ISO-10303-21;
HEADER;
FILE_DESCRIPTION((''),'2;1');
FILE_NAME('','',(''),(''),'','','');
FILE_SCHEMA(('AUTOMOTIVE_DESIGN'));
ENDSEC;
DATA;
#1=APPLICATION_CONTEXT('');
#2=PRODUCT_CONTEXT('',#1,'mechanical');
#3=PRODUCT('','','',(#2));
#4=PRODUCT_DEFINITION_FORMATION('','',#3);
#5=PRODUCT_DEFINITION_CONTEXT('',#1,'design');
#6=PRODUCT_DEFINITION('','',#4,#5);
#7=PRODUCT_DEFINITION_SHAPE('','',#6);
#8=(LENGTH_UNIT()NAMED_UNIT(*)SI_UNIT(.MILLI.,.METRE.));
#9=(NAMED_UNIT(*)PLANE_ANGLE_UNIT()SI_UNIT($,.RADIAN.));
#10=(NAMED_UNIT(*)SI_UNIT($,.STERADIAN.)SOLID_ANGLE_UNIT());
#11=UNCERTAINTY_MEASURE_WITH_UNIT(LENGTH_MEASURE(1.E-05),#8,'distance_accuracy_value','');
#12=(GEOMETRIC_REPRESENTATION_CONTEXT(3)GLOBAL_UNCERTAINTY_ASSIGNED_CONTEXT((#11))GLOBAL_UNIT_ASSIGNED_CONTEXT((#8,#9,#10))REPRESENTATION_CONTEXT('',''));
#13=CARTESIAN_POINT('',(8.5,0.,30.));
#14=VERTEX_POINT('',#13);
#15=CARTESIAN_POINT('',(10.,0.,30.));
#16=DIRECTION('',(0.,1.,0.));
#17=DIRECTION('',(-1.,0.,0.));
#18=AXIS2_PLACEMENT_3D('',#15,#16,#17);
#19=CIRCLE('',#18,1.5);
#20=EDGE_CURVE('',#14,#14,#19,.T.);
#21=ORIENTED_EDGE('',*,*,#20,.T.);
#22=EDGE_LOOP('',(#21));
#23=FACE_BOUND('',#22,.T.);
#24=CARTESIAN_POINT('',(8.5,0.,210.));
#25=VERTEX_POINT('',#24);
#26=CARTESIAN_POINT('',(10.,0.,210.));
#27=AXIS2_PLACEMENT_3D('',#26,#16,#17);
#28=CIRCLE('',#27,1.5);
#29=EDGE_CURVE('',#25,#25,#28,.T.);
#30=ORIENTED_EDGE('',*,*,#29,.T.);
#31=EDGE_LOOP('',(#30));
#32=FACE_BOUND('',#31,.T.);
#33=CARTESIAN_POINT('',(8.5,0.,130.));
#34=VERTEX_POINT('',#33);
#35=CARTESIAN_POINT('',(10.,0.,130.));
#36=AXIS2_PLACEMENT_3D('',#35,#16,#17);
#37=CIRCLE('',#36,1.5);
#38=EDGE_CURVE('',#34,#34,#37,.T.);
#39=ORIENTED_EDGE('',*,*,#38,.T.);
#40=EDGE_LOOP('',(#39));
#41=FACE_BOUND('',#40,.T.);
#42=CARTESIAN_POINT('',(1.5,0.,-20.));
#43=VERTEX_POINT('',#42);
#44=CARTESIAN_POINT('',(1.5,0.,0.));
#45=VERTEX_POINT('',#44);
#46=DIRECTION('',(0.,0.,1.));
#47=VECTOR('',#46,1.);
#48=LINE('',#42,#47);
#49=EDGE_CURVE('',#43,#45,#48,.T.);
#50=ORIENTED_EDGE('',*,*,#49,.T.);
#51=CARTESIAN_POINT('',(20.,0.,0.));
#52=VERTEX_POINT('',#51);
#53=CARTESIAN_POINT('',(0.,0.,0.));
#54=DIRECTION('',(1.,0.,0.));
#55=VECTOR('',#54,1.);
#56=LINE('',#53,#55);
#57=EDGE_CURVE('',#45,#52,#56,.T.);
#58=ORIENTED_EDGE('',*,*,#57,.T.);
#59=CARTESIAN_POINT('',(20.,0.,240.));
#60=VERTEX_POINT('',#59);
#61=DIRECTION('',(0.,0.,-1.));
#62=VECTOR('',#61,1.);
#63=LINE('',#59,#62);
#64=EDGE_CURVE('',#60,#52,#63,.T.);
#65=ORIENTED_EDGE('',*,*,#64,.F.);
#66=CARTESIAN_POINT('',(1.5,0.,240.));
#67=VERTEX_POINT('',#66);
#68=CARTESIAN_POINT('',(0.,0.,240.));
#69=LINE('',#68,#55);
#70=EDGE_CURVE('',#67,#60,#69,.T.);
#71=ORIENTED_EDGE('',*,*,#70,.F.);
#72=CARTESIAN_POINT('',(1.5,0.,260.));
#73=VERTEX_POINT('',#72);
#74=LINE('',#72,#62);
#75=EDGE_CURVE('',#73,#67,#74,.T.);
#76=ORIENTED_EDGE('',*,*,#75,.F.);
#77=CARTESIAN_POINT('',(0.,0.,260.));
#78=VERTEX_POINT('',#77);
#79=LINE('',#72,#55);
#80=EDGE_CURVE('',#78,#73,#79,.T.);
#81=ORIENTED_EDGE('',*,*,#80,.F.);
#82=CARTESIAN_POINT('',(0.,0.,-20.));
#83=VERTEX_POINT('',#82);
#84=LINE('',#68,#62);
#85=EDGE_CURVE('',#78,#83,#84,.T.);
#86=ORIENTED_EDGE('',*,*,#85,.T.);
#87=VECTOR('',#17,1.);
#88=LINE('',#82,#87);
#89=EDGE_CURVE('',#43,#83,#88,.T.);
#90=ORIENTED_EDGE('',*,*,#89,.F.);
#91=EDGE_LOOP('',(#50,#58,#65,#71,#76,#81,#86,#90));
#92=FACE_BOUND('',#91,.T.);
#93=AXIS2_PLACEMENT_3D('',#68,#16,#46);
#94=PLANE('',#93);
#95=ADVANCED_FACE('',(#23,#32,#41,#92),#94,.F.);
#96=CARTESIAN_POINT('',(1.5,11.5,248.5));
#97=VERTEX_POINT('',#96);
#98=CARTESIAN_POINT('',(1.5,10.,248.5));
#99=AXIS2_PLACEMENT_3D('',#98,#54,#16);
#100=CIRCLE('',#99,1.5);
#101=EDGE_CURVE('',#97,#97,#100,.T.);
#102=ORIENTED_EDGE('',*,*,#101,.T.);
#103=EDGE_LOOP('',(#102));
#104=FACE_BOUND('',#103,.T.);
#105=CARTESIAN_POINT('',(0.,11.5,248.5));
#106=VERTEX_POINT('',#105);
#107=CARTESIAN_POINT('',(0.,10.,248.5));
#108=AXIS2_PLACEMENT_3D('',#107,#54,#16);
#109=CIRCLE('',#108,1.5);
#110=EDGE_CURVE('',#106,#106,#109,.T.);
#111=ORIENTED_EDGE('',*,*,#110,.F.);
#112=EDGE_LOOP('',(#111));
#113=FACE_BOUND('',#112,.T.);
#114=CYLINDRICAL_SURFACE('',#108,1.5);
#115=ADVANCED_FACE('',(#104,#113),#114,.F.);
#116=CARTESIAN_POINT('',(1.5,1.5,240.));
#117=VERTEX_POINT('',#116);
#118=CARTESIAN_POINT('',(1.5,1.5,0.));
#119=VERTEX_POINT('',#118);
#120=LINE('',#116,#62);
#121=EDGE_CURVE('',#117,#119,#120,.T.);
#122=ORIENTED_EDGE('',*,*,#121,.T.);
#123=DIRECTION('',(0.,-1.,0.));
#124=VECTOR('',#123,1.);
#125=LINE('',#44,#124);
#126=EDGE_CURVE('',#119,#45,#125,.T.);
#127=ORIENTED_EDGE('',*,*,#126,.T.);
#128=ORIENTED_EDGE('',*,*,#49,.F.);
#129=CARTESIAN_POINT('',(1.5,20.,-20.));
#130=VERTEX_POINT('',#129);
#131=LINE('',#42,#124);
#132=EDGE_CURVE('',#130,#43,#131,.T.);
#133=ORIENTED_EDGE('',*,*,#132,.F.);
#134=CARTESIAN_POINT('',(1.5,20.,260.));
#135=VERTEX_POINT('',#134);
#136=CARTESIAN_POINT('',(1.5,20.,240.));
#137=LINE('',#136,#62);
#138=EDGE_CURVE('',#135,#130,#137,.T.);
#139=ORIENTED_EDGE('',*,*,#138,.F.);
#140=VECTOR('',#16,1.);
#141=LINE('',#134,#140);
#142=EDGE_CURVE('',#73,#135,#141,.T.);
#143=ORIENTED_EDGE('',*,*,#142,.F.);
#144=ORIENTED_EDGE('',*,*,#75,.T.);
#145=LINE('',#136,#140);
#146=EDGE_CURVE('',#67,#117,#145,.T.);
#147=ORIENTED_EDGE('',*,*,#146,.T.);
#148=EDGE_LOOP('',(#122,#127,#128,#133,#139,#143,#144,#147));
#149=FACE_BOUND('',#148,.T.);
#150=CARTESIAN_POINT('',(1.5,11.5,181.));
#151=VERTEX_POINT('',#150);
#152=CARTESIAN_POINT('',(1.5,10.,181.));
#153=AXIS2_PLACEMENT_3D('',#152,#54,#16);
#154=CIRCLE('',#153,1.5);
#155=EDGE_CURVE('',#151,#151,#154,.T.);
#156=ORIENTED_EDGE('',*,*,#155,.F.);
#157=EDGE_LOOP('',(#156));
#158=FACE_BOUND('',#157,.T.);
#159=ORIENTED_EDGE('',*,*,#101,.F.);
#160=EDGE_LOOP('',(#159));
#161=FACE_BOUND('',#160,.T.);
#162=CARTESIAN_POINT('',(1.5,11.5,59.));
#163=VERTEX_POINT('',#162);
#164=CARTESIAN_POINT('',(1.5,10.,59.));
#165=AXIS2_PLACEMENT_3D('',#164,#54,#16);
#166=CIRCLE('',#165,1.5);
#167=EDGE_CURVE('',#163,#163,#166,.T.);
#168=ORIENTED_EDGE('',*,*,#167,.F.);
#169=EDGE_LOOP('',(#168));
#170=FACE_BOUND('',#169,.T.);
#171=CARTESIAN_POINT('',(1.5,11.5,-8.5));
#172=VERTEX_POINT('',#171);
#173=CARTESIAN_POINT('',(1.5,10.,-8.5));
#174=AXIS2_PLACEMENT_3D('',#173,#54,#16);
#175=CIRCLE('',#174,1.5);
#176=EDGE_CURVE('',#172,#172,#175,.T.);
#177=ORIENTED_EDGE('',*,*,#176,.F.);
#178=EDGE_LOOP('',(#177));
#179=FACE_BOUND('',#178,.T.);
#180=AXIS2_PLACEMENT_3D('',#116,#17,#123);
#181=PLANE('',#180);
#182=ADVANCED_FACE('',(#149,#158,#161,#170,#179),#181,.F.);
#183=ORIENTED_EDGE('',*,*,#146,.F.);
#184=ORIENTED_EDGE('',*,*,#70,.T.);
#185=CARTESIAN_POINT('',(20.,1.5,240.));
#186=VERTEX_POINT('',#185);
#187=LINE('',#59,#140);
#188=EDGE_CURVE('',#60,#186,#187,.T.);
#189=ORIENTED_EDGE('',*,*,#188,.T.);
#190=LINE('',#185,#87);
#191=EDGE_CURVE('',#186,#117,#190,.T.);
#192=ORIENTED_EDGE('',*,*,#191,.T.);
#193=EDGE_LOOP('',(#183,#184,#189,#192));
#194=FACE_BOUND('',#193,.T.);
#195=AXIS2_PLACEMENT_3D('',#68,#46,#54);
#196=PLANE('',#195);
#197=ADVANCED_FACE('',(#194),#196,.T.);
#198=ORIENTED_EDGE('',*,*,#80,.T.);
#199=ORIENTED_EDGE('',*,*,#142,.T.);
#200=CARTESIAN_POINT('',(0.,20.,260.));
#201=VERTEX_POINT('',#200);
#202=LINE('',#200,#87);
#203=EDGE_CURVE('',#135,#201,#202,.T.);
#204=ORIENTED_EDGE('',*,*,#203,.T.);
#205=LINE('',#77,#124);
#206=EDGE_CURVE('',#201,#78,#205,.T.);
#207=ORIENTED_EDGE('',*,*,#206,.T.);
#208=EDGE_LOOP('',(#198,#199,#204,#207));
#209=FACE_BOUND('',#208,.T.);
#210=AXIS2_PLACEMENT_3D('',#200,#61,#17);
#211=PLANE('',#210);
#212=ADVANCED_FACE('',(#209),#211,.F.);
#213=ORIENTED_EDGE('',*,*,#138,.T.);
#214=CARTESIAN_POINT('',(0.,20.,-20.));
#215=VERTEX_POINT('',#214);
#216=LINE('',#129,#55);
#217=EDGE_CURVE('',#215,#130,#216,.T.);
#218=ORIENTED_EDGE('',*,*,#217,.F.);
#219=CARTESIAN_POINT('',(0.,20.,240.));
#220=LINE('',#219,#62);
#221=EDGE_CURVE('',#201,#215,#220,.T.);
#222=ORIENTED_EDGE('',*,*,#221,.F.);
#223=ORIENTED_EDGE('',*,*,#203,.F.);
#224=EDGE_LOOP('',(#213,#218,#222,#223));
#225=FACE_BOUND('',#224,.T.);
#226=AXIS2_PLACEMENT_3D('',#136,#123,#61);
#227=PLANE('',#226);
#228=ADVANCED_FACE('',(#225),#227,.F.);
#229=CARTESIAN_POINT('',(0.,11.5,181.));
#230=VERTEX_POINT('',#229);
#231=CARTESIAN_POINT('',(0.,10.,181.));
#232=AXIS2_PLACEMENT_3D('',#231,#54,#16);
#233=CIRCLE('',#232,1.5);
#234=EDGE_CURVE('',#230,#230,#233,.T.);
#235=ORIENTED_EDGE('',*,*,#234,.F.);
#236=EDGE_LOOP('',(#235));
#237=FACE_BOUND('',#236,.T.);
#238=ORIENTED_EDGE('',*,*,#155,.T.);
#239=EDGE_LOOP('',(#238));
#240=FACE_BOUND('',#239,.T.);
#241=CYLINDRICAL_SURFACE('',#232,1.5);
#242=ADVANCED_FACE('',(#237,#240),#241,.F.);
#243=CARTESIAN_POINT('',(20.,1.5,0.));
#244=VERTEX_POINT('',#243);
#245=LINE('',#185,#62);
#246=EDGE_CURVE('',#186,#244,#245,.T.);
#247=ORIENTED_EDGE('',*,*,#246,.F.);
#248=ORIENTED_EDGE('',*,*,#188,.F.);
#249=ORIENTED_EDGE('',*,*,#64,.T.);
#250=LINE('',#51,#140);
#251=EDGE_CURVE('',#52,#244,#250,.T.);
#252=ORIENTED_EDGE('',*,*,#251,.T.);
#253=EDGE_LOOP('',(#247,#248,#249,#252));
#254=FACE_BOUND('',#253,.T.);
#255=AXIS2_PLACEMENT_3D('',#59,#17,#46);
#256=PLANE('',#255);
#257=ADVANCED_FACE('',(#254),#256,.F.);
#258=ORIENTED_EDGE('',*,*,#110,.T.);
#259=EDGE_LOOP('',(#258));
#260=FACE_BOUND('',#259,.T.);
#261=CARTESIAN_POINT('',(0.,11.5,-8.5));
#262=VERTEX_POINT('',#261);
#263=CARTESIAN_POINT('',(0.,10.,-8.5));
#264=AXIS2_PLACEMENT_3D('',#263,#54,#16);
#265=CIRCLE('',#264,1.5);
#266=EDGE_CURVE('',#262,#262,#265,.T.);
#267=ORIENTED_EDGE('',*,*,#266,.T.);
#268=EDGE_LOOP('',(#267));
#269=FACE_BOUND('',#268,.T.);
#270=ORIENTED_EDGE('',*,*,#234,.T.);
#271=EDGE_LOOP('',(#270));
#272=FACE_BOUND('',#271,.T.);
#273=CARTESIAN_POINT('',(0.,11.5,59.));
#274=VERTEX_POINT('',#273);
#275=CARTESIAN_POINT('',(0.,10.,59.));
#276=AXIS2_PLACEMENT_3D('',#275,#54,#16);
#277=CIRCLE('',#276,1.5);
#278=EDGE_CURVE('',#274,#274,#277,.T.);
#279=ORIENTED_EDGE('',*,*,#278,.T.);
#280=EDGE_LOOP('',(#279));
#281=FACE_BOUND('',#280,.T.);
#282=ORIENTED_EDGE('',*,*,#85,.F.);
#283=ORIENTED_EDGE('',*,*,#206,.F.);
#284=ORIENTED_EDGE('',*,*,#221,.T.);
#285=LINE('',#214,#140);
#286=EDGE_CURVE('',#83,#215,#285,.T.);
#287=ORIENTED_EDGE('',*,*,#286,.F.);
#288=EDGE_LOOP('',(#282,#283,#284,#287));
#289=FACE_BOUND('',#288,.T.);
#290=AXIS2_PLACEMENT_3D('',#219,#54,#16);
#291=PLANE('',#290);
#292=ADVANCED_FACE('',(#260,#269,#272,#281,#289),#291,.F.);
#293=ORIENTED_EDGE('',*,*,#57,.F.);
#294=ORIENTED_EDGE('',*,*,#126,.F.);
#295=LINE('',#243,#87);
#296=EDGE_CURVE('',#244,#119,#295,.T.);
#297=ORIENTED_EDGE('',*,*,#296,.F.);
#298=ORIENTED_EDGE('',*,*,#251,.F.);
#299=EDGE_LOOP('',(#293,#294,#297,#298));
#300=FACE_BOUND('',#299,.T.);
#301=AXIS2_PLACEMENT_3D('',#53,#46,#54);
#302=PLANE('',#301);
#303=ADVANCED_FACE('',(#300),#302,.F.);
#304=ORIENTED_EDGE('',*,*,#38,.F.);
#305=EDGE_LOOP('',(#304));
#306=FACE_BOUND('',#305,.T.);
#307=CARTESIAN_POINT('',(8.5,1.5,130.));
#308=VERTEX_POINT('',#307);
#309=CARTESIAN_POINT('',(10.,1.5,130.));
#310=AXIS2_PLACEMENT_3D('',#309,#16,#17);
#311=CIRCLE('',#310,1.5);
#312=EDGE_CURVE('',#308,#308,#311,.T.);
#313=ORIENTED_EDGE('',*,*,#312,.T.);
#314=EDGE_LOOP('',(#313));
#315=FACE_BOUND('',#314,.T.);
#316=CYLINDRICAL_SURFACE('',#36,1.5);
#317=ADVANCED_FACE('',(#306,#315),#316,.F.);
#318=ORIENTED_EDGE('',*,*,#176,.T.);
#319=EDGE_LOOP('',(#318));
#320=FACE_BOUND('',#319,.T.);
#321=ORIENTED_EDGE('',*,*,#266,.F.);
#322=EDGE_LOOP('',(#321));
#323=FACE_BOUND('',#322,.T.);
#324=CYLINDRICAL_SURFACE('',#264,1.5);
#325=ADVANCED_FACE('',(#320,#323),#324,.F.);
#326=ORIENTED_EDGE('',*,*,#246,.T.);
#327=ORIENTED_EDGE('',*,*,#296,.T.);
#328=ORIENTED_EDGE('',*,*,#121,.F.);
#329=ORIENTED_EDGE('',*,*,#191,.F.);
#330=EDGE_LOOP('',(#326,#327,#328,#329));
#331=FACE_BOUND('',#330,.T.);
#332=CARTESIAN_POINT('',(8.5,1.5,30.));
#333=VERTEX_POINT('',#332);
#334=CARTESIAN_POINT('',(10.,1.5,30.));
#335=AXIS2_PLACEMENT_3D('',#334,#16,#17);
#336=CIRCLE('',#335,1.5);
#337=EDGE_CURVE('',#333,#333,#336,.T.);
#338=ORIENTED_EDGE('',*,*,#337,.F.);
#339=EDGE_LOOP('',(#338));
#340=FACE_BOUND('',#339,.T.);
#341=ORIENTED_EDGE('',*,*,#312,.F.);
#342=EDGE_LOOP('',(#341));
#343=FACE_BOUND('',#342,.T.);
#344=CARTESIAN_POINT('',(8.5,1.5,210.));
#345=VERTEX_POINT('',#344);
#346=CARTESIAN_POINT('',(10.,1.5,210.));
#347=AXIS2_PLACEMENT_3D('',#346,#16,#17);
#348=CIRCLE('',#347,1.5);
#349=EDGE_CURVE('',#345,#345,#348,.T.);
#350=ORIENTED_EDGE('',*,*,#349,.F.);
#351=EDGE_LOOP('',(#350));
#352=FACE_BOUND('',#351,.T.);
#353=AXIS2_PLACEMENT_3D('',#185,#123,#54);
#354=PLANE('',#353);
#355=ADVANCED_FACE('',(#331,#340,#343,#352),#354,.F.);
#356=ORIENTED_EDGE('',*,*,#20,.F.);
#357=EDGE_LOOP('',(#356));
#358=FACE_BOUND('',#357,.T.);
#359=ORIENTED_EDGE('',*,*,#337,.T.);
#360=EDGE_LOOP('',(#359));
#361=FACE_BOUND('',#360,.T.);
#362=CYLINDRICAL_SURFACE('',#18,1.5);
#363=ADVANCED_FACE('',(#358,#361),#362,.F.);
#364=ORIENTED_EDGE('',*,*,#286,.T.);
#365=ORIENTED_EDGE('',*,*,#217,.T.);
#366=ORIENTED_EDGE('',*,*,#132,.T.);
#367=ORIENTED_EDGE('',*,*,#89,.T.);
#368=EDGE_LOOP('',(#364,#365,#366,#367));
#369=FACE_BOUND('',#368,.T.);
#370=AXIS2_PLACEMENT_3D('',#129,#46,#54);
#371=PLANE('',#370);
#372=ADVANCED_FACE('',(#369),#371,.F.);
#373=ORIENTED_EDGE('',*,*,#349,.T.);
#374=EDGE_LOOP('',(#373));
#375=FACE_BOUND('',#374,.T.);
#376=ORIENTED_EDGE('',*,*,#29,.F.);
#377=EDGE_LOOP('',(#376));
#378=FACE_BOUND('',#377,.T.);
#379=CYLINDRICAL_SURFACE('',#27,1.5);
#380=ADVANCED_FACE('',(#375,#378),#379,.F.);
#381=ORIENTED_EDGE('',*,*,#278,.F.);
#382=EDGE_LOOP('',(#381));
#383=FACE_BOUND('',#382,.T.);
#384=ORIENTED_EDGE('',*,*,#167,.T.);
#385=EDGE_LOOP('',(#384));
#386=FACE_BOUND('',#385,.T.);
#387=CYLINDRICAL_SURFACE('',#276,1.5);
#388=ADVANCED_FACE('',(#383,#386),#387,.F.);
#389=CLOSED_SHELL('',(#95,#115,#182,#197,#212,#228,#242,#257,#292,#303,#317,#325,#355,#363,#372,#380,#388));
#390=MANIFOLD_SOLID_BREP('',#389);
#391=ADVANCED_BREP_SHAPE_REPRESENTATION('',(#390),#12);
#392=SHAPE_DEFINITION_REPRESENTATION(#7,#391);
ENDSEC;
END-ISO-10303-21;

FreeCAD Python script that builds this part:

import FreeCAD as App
import Part
import Sketcher

V = App.Vector

doc = App.newDocument("Part")
body = doc.addObject("PartDesign::Body", "Body")

# Sketch on XY plane
sketch1 = doc.addObject("Sketcher::SketchObject", "Sketch")
body.addObject(sketch1)
sketch1.AttachmentSupport = (doc.XY_Plane, [""])
sketch1.MapMode = "FlatFace"
sketch1.addGeometry([
    Part.LineSegment(V(0, 0, 0), V(20, 0, 0)),  # 0
    Part.LineSegment(V(20, 0, 0), V(20, 1.5, 0)),  # 1
    Part.LineSegment(V(20, 1.5, 0), V(1.5, 1.5, 0)),  # 2
    Part.LineSegment(V(1.5, 1.5, 0), V(1.5, 20, 0)),  # 3
    Part.LineSegment(V(1.5, 20, 0), V(0, 20, 0)),  # 4
    Part.LineSegment(V(0, 20, 0), V(0, 0, 0)),  # 5
], False)
sketch1.addConstraint([
    Sketcher.Constraint("Coincident", 0, 2, 1, 1),
    Sketcher.Constraint("Coincident", 1, 2, 2, 1),
    Sketcher.Constraint("Coincident", 2, 2, 3, 1),
    Sketcher.Constraint("Coincident", 3, 2, 4, 1),
    Sketcher.Constraint("Coincident", 4, 2, 5, 1),
    Sketcher.Constraint("Coincident", 5, 2, 0, 1),
    Sketcher.Constraint("Horizontal", 0),
    Sketcher.Constraint("Vertical", 1),
    Sketcher.Constraint("Horizontal", 2),
    Sketcher.Constraint("Vertical", 3),
    Sketcher.Constraint("Horizontal", 4),
    Sketcher.Constraint("Vertical", 5),
    Sketcher.Constraint("Coincident", 5, 2, -1, 1),
    Sketcher.Constraint("Equal", 4, 1),
    Sketcher.Constraint("Equal", 2, 3),
    Sketcher.Constraint("DistanceX", 0, 1, 0, 2, 20.0),
    Sketcher.Constraint("DistanceX", 2, 2, 2, 1, 18.5),
])
pad1 = doc.addObject("PartDesign::Pad", "Pad")
body.addObject(pad1)
pad1.Profile = sketch1
pad1.Length = 240

# Sketch on XZ plane
sketch2 = doc.addObject("Sketcher::SketchObject", "Sketch001")
body.addObject(sketch2)
sketch2.AttachmentSupport = (doc.XZ_Plane, [""])
sketch2.MapMode = "FlatFace"
sketch2.AttachmentOffset = App.Placement(V(0, 0, -1.5), App.Rotation())
sketch2.addGeometry([
    Part.Circle(V(10, 30, 0), V(0, 0, 1), 1.5),
    Part.Circle(V(10, 210, 0), V(0, 0, 1), 1.5),
    Part.Circle(V(10, 130, 0), V(0, 0, 1), 1.5),
], False)
sketch2.addConstraint([
    Sketcher.Constraint("Equal", 0, 1),
    Sketcher.Constraint("Equal", 1, 2),
    Sketcher.Constraint("Vertical", 0, 3, 1, 3),
    Sketcher.Constraint("Vertical", 1, 3, 2, 3),
    Sketcher.Constraint("Diameter", 0, 3.0),
    Sketcher.Constraint("DistanceX", -1, 1, 0, 3, 10.0),
    Sketcher.Constraint("DistanceY", -1, 1, 0, 3, 30.0),
    Sketcher.Constraint("DistanceY", -1, 1, 1, 3, 210.0),
    Sketcher.Constraint("DistanceY", -1, 1, 2, 3, 130.0),
])
pocket1 = doc.addObject("PartDesign::Pocket", "Pocket")
body.addObject(pocket1)
pocket1.Profile = sketch2
pocket1.Type = "ThroughAll"
pocket1.Reversed = True

# Sketch on XY plane
sketch3 = doc.addObject("Sketcher::SketchObject", "Sketch002")
body.addObject(sketch3)
sketch3.AttachmentSupport = (doc.XY_Plane, [""])
sketch3.MapMode = "FlatFace"
sketch3.AttachmentOffset = App.Placement(V(0, 0, 240), App.Rotation())
sketch3.addGeometry([
    Part.LineSegment(V(0, 20, 0), V(0, 0, 0)),
    Part.LineSegment(V(0, 0, 0), V(1.5, 0, 0)),
    Part.LineSegment(V(1.5, 0, 0), V(1.5, 20, 0)),
    Part.LineSegment(V(1.5, 20, 0), V(0, 20, 0)),
], False)
sketch3.addConstraint([
    Sketcher.Constraint("Coincident", 0, 2, 1, 1),
    Sketcher.Constraint("Coincident", 1, 2, 2, 1),
    Sketcher.Constraint("Coincident", 2, 2, 3, 1),
    Sketcher.Constraint("Coincident", 3, 2, 0, 1),
    Sketcher.Constraint("Vertical", 0),
    Sketcher.Constraint("Horizontal", 1),
    Sketcher.Constraint("Vertical", 2),
    Sketcher.Constraint("Horizontal", 3),
    Sketcher.Constraint("Coincident", 0, 2, -1, 1),
    Sketcher.Constraint("DistanceY", 0, 2, 0, 1, 20.0),
    Sketcher.Constraint("DistanceX", 1, 1, 1, 2, 1.5),
])
pad2 = doc.addObject("PartDesign::Pad", "Pad001")
body.addObject(pad2)
pad2.Profile = sketch3
pad2.Length = 20

# Sketch on XY plane
sketch4 = doc.addObject("Sketcher::SketchObject", "Sketch003")
body.addObject(sketch4)
sketch4.AttachmentSupport = (doc.XY_Plane, [""])
sketch4.MapMode = "FlatFace"
sketch4.addGeometry([
    Part.LineSegment(V(1.5, 20, 0), V(1.5, 0, 0)),
    Part.LineSegment(V(1.5, 0, 0), V(0, 0, 0)),
    Part.LineSegment(V(0, 0, 0), V(0, 20, 0)),
    Part.LineSegment(V(0, 20, 0), V(1.5, 20, 0)),
], False)
sketch4.addConstraint([
    Sketcher.Constraint("Coincident", 0, 2, 1, 1),
    Sketcher.Constraint("Coincident", 1, 2, 2, 1),
    Sketcher.Constraint("Coincident", 2, 2, 3, 1),
    Sketcher.Constraint("Coincident", 3, 2, 0, 1),
    Sketcher.Constraint("Vertical", 0),
    Sketcher.Constraint("Horizontal", 1),
    Sketcher.Constraint("Vertical", 2),
    Sketcher.Constraint("Horizontal", 3),
    Sketcher.Constraint("Coincident", 1, 2, -1, 1),
    Sketcher.Constraint("DistanceY", 0, 2, 0, 1, 20.0),
    Sketcher.Constraint("DistanceX", 1, 2, 1, 1, 1.5),
])
pad3 = doc.addObject("PartDesign::Pad", "Pad002")
body.addObject(pad3)
pad3.Profile = sketch4
pad3.Length = 20
pad3.Reversed = True

# Sketch on YZ plane
sketch5 = doc.addObject("Sketcher::SketchObject", "Sketch004")
body.addObject(sketch5)
sketch5.AttachmentSupport = (doc.YZ_Plane, [""])
sketch5.MapMode = "FlatFace"
sketch5.AttachmentOffset = App.Placement(V(0, 0, 1.5), App.Rotation())
sketch5.addGeometry([
    Part.Circle(V(10, 248.5, 0), V(0, 0, 1), 1.5),
    Part.Circle(V(10, -8.5, 0), V(0, 0, 1), 1.5),
    Part.Circle(V(10, 181, 0), V(0, 0, 1), 1.5),
    Part.Circle(V(10, 59, 0), V(0, 0, 1), 1.5),
], False)
sketch5.addConstraint([
    Sketcher.Constraint("Equal", 0, 1),
    Sketcher.Constraint("Equal", 1, 2),
    Sketcher.Constraint("Equal", 2, 3),
    Sketcher.Constraint("Vertical", 0, 3, 1, 3),
    Sketcher.Constraint("Vertical", 1, 3, 2, 3),
    Sketcher.Constraint("Vertical", 2, 3, 3, 3),
    Sketcher.Constraint("Diameter", 0, 3.0),
    Sketcher.Constraint("DistanceX", -1, 1, 0, 3, 10.0),
    Sketcher.Constraint("DistanceY", -1, 1, 2, 3, 181.0),
    Sketcher.Constraint("DistanceY", -1, 1, 3, 3, 59.0),
    Sketcher.Constraint("DistanceY", 1, 3, 0, 3, 257.0),
    Sketcher.Constraint("DistanceY", -1, 1, 0, 3, 248.5),
])
pocket2 = doc.addObject("PartDesign::Pocket", "Pocket001")
body.addObject(pocket2)
pocket2.Profile = sketch5
pocket2.Type = "ThroughAll"

doc.recompute()
